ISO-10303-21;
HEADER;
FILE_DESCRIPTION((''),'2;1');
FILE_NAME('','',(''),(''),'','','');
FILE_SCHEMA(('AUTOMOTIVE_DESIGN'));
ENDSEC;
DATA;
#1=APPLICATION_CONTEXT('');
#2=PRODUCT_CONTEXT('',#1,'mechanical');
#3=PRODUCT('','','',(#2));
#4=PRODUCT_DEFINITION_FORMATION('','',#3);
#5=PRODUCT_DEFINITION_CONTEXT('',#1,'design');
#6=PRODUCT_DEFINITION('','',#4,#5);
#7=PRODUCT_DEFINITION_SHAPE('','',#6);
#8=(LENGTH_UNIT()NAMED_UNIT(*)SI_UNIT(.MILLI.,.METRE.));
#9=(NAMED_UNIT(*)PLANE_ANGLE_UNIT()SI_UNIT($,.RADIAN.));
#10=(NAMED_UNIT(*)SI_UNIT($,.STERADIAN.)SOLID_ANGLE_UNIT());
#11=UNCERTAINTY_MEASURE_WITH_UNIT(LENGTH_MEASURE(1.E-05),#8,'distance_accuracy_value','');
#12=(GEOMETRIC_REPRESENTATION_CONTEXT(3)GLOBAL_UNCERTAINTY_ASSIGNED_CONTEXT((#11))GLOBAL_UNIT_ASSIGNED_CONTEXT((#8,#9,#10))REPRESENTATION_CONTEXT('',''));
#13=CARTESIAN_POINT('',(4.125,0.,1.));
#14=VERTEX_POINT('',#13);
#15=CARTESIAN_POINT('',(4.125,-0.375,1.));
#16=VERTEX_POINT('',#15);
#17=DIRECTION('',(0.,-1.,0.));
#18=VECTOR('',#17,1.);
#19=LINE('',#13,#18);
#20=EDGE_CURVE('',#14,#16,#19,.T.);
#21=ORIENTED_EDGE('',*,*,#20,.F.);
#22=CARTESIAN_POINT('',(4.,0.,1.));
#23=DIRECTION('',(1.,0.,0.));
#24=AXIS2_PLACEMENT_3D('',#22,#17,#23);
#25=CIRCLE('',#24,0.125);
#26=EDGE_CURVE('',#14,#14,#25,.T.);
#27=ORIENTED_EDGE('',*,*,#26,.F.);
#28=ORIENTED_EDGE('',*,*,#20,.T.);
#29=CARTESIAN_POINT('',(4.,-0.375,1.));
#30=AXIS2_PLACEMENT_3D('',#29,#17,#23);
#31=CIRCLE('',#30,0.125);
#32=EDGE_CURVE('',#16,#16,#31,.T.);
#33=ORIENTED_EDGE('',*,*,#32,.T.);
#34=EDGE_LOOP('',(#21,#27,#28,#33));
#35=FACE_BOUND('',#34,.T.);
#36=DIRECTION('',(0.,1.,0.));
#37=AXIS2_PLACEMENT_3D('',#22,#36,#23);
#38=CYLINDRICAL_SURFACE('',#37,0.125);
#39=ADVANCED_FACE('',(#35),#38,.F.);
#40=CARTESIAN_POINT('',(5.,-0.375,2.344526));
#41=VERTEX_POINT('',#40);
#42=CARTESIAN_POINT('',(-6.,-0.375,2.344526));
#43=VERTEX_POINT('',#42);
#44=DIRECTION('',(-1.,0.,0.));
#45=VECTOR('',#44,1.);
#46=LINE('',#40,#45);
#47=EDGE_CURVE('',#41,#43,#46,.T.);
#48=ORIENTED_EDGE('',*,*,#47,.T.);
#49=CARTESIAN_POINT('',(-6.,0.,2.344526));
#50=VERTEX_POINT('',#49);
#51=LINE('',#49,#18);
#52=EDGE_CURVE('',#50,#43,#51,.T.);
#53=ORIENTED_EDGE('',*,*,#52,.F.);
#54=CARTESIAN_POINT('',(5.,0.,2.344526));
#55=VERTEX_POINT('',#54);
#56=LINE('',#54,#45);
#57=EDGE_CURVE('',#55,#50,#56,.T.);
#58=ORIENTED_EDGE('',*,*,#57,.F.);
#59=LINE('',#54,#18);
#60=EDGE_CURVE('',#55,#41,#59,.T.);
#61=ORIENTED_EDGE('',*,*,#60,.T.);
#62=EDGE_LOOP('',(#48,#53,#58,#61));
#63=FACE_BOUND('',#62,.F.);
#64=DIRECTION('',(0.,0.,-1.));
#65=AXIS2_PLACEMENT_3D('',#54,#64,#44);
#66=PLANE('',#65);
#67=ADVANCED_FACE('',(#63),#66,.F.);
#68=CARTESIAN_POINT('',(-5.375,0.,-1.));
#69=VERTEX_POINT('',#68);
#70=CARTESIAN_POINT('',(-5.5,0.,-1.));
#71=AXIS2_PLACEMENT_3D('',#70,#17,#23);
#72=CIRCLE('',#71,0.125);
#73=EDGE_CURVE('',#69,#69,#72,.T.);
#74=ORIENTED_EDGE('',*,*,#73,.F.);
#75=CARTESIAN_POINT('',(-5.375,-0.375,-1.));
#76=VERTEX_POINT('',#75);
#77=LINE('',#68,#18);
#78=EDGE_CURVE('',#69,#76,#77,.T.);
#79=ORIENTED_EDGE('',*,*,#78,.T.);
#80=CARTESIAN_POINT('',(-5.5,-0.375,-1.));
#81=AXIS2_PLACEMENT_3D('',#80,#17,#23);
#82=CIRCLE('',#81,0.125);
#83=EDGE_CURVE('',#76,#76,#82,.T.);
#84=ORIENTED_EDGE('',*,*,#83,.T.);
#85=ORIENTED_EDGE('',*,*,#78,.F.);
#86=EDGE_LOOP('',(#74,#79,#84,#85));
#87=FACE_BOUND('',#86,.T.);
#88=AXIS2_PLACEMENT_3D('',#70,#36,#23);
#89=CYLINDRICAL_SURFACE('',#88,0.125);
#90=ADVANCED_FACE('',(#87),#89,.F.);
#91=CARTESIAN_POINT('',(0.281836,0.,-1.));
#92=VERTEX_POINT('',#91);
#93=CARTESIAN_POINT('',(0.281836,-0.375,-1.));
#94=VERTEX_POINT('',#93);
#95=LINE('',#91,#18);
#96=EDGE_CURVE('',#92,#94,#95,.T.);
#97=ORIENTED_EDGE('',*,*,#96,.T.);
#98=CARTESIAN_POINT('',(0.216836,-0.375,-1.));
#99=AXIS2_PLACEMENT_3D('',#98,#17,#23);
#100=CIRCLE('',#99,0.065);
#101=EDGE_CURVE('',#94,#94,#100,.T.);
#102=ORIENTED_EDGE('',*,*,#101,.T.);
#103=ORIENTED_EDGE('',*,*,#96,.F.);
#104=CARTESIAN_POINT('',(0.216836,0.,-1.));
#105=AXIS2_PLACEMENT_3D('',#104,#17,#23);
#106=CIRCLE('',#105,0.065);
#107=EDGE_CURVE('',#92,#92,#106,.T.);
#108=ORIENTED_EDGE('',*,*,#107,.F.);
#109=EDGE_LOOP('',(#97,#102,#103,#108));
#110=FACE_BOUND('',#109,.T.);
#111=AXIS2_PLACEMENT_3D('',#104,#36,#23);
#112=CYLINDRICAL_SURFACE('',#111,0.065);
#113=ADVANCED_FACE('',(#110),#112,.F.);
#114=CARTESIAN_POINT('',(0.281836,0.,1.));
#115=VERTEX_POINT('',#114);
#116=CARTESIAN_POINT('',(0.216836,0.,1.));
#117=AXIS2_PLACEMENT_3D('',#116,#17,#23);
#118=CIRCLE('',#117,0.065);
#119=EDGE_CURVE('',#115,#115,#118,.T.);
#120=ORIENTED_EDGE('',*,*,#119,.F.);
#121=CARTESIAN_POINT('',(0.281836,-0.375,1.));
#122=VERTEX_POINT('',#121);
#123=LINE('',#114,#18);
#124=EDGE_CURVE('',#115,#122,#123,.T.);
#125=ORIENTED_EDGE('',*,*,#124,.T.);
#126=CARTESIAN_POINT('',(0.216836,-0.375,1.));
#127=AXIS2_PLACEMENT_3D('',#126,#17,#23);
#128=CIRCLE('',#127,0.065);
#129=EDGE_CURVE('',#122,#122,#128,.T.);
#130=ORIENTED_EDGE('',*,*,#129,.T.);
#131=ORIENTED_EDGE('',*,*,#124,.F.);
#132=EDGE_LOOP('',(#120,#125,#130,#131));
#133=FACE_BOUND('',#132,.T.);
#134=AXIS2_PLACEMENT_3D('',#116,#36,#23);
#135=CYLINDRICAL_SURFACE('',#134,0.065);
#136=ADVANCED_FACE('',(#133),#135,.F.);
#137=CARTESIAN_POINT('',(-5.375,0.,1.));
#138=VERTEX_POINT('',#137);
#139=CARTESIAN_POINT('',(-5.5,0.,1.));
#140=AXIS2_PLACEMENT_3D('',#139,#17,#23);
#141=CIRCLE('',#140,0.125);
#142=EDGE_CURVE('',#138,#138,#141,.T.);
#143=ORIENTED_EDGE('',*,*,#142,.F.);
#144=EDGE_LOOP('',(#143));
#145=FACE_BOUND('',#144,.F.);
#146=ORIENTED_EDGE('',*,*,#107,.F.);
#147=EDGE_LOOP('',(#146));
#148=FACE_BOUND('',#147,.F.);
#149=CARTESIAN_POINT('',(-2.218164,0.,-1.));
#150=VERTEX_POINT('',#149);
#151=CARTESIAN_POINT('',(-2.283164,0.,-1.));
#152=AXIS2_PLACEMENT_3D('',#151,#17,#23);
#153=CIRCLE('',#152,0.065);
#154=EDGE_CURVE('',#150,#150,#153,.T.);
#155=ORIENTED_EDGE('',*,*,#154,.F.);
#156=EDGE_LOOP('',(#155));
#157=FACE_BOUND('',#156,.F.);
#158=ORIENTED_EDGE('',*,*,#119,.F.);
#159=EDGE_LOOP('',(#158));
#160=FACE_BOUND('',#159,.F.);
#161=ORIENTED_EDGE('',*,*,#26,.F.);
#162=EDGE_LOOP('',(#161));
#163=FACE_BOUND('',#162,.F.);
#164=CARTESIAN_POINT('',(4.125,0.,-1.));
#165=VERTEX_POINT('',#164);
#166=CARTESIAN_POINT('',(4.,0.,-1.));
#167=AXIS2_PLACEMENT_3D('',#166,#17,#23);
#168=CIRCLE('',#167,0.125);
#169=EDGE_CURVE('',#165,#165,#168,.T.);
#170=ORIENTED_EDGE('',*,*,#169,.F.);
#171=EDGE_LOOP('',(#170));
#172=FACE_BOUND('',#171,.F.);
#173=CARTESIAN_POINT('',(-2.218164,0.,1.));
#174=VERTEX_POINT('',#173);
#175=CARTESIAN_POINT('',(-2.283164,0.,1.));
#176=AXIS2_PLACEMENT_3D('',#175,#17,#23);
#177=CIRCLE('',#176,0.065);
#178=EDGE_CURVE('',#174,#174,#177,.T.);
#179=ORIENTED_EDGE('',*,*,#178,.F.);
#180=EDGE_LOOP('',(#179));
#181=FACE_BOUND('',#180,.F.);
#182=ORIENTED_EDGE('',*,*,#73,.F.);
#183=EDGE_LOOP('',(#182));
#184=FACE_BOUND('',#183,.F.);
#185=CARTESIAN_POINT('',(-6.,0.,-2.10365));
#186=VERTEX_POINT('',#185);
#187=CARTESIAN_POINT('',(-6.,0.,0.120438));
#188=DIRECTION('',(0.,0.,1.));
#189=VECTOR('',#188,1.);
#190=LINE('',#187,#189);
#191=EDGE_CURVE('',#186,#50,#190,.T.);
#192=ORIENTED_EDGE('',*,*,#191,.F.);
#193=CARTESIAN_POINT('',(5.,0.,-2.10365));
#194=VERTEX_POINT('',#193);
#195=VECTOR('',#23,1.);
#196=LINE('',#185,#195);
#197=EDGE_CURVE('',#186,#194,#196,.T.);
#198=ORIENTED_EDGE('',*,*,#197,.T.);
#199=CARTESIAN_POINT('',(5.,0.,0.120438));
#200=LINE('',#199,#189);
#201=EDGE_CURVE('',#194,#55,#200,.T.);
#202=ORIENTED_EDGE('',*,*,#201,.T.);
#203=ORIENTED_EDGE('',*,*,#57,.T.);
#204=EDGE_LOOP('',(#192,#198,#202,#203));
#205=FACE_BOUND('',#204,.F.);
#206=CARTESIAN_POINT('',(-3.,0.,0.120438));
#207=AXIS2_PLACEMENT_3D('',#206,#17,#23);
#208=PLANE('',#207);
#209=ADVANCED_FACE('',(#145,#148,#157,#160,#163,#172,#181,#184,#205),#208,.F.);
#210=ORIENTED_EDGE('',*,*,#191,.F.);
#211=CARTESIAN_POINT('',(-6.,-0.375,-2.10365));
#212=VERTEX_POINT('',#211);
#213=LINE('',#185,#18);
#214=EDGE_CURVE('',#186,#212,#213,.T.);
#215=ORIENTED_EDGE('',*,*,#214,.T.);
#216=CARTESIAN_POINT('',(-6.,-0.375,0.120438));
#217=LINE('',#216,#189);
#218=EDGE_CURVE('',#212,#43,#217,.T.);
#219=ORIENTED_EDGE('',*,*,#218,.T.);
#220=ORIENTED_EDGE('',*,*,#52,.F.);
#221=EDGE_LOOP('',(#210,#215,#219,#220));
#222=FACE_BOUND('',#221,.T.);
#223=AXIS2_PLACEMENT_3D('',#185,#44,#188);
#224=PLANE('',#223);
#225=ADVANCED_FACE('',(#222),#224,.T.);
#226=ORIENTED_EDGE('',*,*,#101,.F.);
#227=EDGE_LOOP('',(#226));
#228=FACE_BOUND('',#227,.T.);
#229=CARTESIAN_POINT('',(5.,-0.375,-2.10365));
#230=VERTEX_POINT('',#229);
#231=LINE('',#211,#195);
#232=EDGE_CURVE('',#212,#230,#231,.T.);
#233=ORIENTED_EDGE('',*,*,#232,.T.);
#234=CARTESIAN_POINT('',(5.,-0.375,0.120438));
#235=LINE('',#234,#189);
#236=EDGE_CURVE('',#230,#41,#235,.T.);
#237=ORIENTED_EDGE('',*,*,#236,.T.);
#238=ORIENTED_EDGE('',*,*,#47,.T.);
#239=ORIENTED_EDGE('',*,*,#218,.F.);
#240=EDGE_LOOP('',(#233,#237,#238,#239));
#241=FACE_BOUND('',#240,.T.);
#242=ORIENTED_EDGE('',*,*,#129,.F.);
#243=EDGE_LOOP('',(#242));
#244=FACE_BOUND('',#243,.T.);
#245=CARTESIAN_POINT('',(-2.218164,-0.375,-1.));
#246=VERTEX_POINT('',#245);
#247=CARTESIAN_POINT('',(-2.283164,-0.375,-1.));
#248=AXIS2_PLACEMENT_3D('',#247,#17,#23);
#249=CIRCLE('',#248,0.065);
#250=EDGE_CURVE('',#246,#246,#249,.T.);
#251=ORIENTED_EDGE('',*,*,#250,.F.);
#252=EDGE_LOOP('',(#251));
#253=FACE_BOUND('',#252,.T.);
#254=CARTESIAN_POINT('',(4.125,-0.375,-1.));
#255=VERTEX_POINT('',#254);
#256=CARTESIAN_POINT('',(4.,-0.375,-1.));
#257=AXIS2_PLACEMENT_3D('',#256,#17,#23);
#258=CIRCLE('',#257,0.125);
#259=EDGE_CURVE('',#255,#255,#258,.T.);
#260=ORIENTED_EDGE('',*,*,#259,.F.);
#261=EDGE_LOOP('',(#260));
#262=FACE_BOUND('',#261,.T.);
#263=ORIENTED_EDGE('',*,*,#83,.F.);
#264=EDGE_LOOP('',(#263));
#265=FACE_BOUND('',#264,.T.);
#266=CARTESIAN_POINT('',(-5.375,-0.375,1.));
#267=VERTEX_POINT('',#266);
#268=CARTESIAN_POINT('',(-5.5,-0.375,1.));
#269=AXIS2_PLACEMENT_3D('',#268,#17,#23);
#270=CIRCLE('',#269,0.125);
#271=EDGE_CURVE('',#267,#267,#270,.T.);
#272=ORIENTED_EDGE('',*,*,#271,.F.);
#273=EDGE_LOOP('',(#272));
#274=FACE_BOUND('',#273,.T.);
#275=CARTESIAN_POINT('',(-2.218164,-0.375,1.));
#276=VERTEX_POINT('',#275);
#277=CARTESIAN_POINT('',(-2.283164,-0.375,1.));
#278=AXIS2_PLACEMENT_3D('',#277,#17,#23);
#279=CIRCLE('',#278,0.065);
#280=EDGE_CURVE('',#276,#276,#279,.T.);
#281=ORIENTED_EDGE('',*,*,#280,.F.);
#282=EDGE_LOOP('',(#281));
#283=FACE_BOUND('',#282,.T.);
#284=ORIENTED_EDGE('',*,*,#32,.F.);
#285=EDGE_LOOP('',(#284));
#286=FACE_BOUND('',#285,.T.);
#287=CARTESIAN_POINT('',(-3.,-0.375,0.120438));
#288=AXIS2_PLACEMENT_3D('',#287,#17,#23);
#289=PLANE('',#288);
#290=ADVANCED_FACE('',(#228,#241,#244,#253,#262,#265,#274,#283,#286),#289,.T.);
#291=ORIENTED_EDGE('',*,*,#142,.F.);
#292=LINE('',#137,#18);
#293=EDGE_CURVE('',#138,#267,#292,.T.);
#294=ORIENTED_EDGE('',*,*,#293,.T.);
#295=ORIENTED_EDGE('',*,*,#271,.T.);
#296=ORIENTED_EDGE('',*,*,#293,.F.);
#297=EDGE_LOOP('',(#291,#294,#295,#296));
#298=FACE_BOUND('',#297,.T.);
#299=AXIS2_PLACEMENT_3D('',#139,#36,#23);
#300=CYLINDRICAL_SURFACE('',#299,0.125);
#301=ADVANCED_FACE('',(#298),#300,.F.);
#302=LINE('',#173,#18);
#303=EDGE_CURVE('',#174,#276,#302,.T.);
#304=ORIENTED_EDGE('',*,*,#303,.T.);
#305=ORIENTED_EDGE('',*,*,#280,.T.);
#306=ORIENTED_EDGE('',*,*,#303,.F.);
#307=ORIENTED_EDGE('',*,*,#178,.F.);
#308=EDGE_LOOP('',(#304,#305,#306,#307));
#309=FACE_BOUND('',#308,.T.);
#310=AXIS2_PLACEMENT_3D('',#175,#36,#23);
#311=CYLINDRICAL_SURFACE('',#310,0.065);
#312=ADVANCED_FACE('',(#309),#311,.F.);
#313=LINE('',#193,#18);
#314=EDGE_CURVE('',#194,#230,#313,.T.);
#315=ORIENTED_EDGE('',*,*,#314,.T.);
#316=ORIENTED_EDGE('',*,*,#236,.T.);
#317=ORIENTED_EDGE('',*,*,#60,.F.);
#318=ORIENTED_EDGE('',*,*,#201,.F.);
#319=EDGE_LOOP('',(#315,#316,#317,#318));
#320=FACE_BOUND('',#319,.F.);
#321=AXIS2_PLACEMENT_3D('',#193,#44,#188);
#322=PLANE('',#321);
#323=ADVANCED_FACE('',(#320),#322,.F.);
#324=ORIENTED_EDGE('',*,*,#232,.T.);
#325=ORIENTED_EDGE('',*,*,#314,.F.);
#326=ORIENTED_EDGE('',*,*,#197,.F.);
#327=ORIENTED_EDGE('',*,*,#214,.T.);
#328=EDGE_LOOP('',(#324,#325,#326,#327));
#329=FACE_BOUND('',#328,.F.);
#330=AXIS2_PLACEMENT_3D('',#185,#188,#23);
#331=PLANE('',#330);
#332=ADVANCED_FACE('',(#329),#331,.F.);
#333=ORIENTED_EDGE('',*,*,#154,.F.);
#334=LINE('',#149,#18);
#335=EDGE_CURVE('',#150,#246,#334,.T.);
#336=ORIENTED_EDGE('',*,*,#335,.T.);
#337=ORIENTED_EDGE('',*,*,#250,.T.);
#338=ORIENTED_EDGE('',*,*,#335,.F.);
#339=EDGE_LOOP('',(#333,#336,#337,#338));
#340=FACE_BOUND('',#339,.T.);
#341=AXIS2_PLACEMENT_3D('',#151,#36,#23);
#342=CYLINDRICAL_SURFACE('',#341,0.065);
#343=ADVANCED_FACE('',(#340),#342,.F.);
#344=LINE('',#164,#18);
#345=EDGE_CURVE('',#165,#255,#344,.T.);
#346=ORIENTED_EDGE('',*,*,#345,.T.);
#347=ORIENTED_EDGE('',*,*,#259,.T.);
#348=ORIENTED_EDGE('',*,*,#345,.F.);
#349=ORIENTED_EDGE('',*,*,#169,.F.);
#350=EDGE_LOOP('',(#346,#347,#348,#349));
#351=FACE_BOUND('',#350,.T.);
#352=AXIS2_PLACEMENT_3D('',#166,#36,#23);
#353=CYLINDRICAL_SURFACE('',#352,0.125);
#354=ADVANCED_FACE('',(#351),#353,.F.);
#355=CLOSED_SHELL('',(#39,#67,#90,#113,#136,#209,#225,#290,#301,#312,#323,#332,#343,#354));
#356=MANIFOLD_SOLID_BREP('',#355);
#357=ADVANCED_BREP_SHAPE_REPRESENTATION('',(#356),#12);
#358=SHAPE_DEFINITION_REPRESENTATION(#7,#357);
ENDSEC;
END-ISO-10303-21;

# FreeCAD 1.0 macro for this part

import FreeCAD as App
import Part
import Sketcher
from FreeCAD import Vector
Q = App.Units.Quantity

doc = App.newDocument("Part")
body = doc.addObject("PartDesign::Body", "Body")

sketch1 = doc.addObject("Sketcher::SketchObject", "Sketch")
body.addObject(sketch1)
sketch1.AttachmentSupport = (doc.XZ_Plane, [""])
sketch1.MapMode = "FlatFace"
sketch1.addGeometry(Part.LineSegment(Vector(-6, 2.34, 0), Vector(-6, -2.1, 0)), False)
sketch1.addGeometry(Part.LineSegment(Vector(-6, -2.1, 0), Vector(5, -2.1, 0)), False)
sketch1.addGeometry(Part.LineSegment(Vector(5, -2.1, 0), Vector(5, 2.34, 0)), False)
sketch1.addGeometry(Part.LineSegment(Vector(5, 2.34, 0), Vector(-6, 2.34, 0)), False)
sketch1.addGeometry(Part.Circle(Vector(-5.5, -1, 0), Vector(0, 0, 1), 0.12), False)
sketch1.addGeometry(Part.Circle(Vector(-2.28, -1, 0), Vector(0, 0, 1), 0.07), False)
sketch1.addGeometry(Part.Circle(Vector(0.22, -1, 0), Vector(0, 0, 1), 0.07), False)
sketch1.addGeometry(Part.Circle(Vector(4, -1, 0), Vector(0, 0, 1), 0.12), False)
sketch1.addGeometry(Part.Circle(Vector(-5.5, 1, 0), Vector(0, 0, 1), 0.12), False)
sketch1.addGeometry(Part.Circle(Vector(-2.28, 1, 0), Vector(0, 0, 1), 0.07), False)
sketch1.addGeometry(Part.Circle(Vector(0.22, 1, 0), Vector(0, 0, 1), 0.07), False)
sketch1.addGeometry(Part.Circle(Vector(4, 1, 0), Vector(0, 0, 1), 0.12), False)
sketch1.addConstraint(Sketcher.Constraint("Coincident", 0, 2, 1, 1))
sketch1.addConstraint(Sketcher.Constraint("Coincident", 1, 2, 2, 1))
sketch1.addConstraint(Sketcher.Constraint("Coincident", 2, 2, 3, 1))
sketch1.addConstraint(Sketcher.Constraint("Coincident", 3, 2, 0, 1))
sketch1.addConstraint(Sketcher.Constraint("Vertical", 0))
sketch1.addConstraint(Sketcher.Constraint("Horizontal", 1))
sketch1.addConstraint(Sketcher.Constraint("Vertical", 2))
sketch1.addConstraint(Sketcher.Constraint("Horizontal", 3))
sketch1.addConstraint(Sketcher.Constraint("Equal", 5, 6))
sketch1.addConstraint(Sketcher.Constraint("Equal", 4, 7))
sketch1.addConstraint(Sketcher.Constraint("Equal", 7, 8))
sketch1.addConstraint(Sketcher.Constraint("Equal", 6, 9))
sketch1.addConstraint(Sketcher.Constraint("Equal", 9, 10))
sketch1.addConstraint(Sketcher.Constraint("Equal", 8, 11))
sketch1.addConstraint(Sketcher.Constraint("Symmetric", 4, 3, 8, 3, -1))
sketch1.addConstraint(Sketcher.Constraint("Symmetric", 5, 3, 9, 3, -1))
sketch1.addConstraint(Sketcher.Constraint("Symmetric", 6, 3, 10, 3, -1))
sketch1.addConstraint(Sketcher.Constraint("Symmetric", 7, 3, 11, 3, -1))
sketch1.addConstraint(Sketcher.Constraint("Horizontal", 4, 3, 5, 3))
sketch1.addConstraint(Sketcher.Constraint("Horizontal", 5, 3, 6, 3))
sketch1.addConstraint(Sketcher.Constraint("Horizontal", 6, 3, 7, 3))
sketch1.addConstraint(Sketcher.Constraint("Diameter", 4, Q("0.25 mm")))
sketch1.addConstraint(Sketcher.Constraint("Diameter", 5, Q("0.13 mm")))
sketch1.addConstraint(Sketcher.Constraint("DistanceX", 1, 1, 1, 2, Q("11 mm")))
sketch1.addConstraint(Sketcher.Constraint("DistanceY", 4, 3, -1, 1, Q("1 mm")))
sketch1.addConstraint(Sketcher.Constraint("DistanceX", -1, 1, 7, 3, Q("4 mm")))
sketch1.addConstraint(Sketcher.Constraint("DistanceX", 0, 2, -1, 1, Q("6 mm")))
sketch1.addConstraint(Sketcher.Constraint("DistanceX", 4, 3, -1, 1, Q("5.5 mm")))
sketch1.addConstraint(Sketcher.Constraint("DistanceX", 5, 3, 6, 3, Q("2.5 mm")))
sketch1.addConstraint(Sketcher.Constraint("DistanceY", 0, 2, 0, 1, Q("4.448176 mm")))
sketch1.addConstraint(Sketcher.Constraint("DistanceY", 0, 2, -1, 1, Q("2.10365 mm")))
sketch1.addConstraint(Sketcher.Constraint("DistanceX", 5, 3, -1, 1, Q("2.283164 mm")))
pad1 = doc.addObject("PartDesign::Pad", "Pad")
body.addObject(pad1)
pad1.Profile = sketch1
pad1.Length = 0.375

doc.recompute()
